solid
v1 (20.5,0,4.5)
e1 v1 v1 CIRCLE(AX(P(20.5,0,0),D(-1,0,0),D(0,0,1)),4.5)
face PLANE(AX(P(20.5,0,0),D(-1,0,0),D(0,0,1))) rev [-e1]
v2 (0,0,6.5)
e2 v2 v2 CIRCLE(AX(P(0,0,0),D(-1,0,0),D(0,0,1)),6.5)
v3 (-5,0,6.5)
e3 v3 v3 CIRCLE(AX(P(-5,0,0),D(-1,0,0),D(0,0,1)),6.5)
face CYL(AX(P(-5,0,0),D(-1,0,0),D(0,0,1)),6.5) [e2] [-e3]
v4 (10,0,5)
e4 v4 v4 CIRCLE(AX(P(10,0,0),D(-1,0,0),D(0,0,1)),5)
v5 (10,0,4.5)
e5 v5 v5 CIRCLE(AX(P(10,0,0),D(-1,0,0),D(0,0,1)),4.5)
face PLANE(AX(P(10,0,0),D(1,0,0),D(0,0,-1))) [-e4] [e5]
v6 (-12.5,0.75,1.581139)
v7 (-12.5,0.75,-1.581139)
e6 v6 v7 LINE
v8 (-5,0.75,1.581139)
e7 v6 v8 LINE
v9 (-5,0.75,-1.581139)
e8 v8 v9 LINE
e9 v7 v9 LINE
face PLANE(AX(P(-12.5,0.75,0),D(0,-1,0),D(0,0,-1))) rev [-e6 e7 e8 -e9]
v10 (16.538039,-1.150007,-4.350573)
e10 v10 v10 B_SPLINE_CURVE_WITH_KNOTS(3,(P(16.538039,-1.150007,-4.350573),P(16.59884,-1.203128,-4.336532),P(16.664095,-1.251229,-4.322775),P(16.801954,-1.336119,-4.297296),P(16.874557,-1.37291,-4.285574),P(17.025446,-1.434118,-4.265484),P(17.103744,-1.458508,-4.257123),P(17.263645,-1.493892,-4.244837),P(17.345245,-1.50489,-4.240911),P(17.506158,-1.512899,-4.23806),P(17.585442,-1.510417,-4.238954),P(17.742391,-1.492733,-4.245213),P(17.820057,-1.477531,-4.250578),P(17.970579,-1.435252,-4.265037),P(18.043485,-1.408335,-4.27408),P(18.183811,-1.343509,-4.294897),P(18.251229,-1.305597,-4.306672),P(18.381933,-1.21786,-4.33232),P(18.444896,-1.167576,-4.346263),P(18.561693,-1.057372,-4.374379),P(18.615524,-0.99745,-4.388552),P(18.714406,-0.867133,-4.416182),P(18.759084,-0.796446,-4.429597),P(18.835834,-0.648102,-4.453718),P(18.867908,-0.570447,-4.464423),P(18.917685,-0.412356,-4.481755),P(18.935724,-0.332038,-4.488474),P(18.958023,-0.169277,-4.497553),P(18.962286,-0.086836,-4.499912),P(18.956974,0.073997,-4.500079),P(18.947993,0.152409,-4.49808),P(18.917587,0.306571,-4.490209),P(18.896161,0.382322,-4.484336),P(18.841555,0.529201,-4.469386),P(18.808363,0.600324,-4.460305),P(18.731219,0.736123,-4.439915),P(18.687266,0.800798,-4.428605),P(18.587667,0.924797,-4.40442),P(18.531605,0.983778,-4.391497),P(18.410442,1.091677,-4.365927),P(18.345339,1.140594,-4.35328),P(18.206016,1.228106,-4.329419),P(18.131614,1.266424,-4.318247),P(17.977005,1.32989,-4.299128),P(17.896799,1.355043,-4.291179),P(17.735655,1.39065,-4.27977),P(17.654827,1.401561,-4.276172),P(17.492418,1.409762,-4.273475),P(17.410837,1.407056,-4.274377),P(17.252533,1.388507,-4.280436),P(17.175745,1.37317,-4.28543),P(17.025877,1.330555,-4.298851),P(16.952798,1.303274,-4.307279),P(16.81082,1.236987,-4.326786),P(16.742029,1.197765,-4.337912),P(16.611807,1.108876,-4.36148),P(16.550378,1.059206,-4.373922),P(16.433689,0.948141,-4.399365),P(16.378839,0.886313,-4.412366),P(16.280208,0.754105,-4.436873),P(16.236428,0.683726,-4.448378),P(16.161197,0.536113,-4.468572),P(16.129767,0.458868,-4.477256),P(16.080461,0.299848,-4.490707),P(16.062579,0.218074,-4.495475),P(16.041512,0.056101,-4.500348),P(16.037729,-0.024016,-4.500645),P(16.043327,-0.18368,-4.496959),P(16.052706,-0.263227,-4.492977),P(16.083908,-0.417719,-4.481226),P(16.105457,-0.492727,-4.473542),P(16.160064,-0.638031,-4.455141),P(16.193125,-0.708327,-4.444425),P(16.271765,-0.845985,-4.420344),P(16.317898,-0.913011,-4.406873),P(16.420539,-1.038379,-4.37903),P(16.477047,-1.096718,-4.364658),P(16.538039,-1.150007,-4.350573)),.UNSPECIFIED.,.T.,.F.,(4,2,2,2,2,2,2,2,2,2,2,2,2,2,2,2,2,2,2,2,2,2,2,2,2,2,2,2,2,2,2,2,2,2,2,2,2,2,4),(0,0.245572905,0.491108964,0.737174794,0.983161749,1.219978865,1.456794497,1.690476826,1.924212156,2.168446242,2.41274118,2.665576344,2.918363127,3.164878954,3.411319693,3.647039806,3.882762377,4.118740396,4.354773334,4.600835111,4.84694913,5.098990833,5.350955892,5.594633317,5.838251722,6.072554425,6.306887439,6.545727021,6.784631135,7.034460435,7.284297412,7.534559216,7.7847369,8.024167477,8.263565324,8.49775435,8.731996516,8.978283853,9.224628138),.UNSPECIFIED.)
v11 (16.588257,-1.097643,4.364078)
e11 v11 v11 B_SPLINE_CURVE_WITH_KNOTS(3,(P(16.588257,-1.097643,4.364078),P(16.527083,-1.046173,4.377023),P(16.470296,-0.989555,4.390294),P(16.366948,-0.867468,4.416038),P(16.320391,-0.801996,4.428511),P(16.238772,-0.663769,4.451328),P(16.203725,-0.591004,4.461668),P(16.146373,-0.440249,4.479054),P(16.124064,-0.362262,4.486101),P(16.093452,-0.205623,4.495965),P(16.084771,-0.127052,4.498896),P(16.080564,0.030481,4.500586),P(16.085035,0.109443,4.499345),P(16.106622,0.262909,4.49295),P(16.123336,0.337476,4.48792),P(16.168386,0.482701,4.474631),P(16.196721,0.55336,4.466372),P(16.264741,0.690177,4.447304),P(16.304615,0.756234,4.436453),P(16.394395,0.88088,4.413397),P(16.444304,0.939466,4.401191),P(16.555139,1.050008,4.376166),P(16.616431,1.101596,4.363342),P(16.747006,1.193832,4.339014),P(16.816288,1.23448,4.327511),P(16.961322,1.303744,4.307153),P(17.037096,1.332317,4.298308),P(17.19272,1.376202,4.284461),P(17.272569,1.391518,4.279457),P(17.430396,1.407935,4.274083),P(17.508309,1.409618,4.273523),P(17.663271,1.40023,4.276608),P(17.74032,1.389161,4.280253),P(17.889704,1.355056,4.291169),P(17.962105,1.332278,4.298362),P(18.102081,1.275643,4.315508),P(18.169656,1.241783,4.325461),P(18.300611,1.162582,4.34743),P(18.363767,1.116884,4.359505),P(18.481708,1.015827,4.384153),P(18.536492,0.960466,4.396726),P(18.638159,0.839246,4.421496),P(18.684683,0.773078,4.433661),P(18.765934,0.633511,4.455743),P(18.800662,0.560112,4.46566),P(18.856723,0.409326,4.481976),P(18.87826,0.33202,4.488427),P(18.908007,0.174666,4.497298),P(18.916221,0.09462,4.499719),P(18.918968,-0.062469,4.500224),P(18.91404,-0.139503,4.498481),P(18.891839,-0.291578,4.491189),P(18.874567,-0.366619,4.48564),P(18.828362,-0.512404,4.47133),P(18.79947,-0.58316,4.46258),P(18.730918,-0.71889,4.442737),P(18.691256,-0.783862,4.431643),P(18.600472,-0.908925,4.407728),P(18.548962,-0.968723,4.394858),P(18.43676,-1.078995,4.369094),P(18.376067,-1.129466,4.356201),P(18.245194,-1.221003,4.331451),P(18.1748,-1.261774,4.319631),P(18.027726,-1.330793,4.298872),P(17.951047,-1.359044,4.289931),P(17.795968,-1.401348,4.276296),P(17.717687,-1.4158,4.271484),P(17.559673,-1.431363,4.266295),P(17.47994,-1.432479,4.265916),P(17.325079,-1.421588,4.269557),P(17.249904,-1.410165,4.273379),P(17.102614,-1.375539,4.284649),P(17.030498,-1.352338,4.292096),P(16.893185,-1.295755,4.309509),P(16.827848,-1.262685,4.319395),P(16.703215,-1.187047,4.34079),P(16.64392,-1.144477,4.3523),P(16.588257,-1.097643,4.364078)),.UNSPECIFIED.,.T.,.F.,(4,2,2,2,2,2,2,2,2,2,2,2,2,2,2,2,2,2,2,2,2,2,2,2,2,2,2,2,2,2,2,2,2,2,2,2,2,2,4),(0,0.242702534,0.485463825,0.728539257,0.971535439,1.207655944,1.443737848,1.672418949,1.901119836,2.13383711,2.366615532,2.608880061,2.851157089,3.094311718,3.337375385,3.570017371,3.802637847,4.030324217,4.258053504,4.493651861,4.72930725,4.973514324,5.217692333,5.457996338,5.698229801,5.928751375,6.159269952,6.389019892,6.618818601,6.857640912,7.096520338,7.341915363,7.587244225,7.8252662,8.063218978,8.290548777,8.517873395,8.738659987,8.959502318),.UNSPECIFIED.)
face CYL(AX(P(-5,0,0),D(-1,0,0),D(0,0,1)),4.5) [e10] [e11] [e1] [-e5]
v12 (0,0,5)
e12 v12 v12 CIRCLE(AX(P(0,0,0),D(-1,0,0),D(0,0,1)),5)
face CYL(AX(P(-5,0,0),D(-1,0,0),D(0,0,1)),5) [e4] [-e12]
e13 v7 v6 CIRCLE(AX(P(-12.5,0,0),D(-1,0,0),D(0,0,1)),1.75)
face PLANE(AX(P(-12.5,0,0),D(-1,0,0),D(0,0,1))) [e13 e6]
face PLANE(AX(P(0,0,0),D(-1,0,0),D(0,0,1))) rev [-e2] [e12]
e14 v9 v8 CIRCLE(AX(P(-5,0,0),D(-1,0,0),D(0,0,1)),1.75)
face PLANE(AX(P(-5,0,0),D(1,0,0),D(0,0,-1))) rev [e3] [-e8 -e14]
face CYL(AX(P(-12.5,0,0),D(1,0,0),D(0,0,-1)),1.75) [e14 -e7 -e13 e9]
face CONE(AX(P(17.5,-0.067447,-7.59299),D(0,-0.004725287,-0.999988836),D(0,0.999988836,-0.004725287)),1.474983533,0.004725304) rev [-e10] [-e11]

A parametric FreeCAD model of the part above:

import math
import FreeCAD as App
import Part
import Sketcher
from FreeCAD import Vector


def add_polygon(sketch, points):
    """Adds a closed chain of lines whose ends are joined by coincident constraints."""
    first, n = sketch.GeometryCount, len(points)
    for a, b in zip(points, points[1:] + points[:1]):
        sketch.addGeometry(Part.LineSegment(App.Vector(*a, 0), App.Vector(*b, 0)), False)
    for i in range(n):
        sketch.addConstraint(Sketcher.Constraint("Coincident", first + i, 2, first + (i + 1) % n, 1))

doc = App.newDocument("Part")
body = doc.addObject("PartDesign::Body", "Body")

sketch1 = body.newObject("Sketcher::SketchObject", "Sketch")
sketch1.AttachmentSupport = (doc.getObject("XY_Plane"), [""])
sketch1.MapMode = "FlatFace"
add_polygon(sketch1, [(-5, 0), (20.5, 0), (20.5, 4.5), (10, 4.5), (10, 5), (0, 5), (0, 6.5), (-5, 6.5)])
sketch1.addConstraint(Sketcher.Constraint("Horizontal", 0))
sketch1.addConstraint(Sketcher.Constraint("Vertical", 1))
sketch1.addConstraint(Sketcher.Constraint("Horizontal", 2))
sketch1.addConstraint(Sketcher.Constraint("Vertical", 3))
sketch1.addConstraint(Sketcher.Constraint("Horizontal", 4))
sketch1.addConstraint(Sketcher.Constraint("Vertical", 5))
sketch1.addConstraint(Sketcher.Constraint("Horizontal", 6))
sketch1.addConstraint(Sketcher.Constraint("Vertical", 7))
sketch1.addConstraint(Sketcher.Constraint("PointOnObject", 0, 2, -1))
sketch1.addConstraint(Sketcher.Constraint("PointOnObject", 4, 2, -2))
sketch1.addConstraint(Sketcher.Constraint("DistanceX", 4, 2, 4, 1, 10.0))
sketch1.addConstraint(Sketcher.Constraint("DistanceX", 6, 2, 6, 1, 5.0))
sketch1.addConstraint(Sketcher.Constraint("DistanceX", 0, 1, 0, 2, 25.5))
sketch1.addConstraint(Sketcher.Constraint("DistanceY", 1, 1, 1, 2, 4.5))
sketch1.addConstraint(Sketcher.Constraint("DistanceY", 3, 1, 3, 2, 0.5))
sketch1.addConstraint(Sketcher.Constraint("DistanceY", 5, 1, 5, 2, 1.5))
revolution = body.newObject("PartDesign::Revolution", "Revolution")
revolution.Profile = sketch1
revolution.ReferenceAxis = (sketch1, ["H_Axis"])
revolution.Angle = 360

sketch2 = body.newObject("Sketcher::SketchObject", "Sketch001")
sketch2.AttachmentSupport = (doc.getObject("YZ_Plane"), [""])
sketch2.MapMode = "FlatFace"
sketch2.AttachmentOffset = App.Placement(Vector(0, 0, 17.5), App.Rotation())
add_polygon(sketch2, [(1.4, 6.7), (0, 6.7), (-0.1, -7.6), (1.4, -7.6)])
sketch2.addGeometry(Part.LineSegment(Vector(0, 6.7, 0), Vector(-0.1, -7.6, 0)), True)
sketch2.addConstraint(Sketcher.Constraint("Horizontal", 0))
sketch2.addConstraint(Sketcher.Constraint("Horizontal", 2))
sketch2.addConstraint(Sketcher.Constraint("Vertical", 3))
sketch2.addConstraint(Sketcher.Constraint("Coincident", 4, 2, 1, 2))
sketch2.addConstraint(Sketcher.Constraint("PointOnObject", 0, 2, -2))
sketch2.addConstraint(Sketcher.Constraint("Parallel", 1, 4))
sketch2.addConstraint(Sketcher.Constraint("DistanceX", 2, 1, 2, 2, 1.475))
sketch2.addConstraint(Sketcher.Constraint("DistanceX", 0, 2, 0, 1, 1.40752))
sketch2.addConstraint(Sketcher.Constraint("Distance", 1, 14.280662))
sketch2.addConstraint(Sketcher.Constraint("DistanceY", 1, 2, -1, 1, 7.59996))
sketch2.addConstraint(Sketcher.Constraint("DistanceY", 0, 2, 4, 1, 0.006651))
groove = body.newObject("PartDesign::Groove", "Groove")
groove.Profile = sketch2
groove.ReferenceAxis = (sketch2, ["Axis0"])
groove.Angle = 360

sketch3 = body.newObject("Sketcher::SketchObject", "Sketch002")
sketch3.AttachmentSupport = (doc.getObject("YZ_Plane"), [""])
sketch3.MapMode = "FlatFace"
sketch3.AttachmentOffset = App.Placement(Vector(0, 0, -5), App.Rotation())
sketch3.addGeometry(Part.ArcOfCircle(Part.Circle(Vector(0, 0, 0), Vector(0, 0, 1), 1.8), math.radians(65), math.radians(295)), False)
sketch3.addGeometry(Part.LineSegment(Vector(0.8, 1.6, 0), Vector(0.8, -1.6, 0)), False)
sketch3.addConstraint(Sketcher.Constraint("Coincident", 0, 1, 1, 1))
sketch3.addConstraint(Sketcher.Constraint("Coincident", 1, 2, 0, 2))
sketch3.addConstraint(Sketcher.Constraint("Vertical", 1))
sketch3.addConstraint(Sketcher.Constraint("Coincident", 0, 3, -1, 1))
sketch3.addConstraint(Sketcher.Constraint("Radius", 0, 1.75))
sketch3.addConstraint(Sketcher.Constraint("DistanceX", -1, 1, 0, 1, 0.75))
pad1 = body.newObject("PartDesign::Pad", "Pad")
pad1.Profile = sketch3
pad1.Length = 7.5
pad1.Reversed = True

doc.recompute()
